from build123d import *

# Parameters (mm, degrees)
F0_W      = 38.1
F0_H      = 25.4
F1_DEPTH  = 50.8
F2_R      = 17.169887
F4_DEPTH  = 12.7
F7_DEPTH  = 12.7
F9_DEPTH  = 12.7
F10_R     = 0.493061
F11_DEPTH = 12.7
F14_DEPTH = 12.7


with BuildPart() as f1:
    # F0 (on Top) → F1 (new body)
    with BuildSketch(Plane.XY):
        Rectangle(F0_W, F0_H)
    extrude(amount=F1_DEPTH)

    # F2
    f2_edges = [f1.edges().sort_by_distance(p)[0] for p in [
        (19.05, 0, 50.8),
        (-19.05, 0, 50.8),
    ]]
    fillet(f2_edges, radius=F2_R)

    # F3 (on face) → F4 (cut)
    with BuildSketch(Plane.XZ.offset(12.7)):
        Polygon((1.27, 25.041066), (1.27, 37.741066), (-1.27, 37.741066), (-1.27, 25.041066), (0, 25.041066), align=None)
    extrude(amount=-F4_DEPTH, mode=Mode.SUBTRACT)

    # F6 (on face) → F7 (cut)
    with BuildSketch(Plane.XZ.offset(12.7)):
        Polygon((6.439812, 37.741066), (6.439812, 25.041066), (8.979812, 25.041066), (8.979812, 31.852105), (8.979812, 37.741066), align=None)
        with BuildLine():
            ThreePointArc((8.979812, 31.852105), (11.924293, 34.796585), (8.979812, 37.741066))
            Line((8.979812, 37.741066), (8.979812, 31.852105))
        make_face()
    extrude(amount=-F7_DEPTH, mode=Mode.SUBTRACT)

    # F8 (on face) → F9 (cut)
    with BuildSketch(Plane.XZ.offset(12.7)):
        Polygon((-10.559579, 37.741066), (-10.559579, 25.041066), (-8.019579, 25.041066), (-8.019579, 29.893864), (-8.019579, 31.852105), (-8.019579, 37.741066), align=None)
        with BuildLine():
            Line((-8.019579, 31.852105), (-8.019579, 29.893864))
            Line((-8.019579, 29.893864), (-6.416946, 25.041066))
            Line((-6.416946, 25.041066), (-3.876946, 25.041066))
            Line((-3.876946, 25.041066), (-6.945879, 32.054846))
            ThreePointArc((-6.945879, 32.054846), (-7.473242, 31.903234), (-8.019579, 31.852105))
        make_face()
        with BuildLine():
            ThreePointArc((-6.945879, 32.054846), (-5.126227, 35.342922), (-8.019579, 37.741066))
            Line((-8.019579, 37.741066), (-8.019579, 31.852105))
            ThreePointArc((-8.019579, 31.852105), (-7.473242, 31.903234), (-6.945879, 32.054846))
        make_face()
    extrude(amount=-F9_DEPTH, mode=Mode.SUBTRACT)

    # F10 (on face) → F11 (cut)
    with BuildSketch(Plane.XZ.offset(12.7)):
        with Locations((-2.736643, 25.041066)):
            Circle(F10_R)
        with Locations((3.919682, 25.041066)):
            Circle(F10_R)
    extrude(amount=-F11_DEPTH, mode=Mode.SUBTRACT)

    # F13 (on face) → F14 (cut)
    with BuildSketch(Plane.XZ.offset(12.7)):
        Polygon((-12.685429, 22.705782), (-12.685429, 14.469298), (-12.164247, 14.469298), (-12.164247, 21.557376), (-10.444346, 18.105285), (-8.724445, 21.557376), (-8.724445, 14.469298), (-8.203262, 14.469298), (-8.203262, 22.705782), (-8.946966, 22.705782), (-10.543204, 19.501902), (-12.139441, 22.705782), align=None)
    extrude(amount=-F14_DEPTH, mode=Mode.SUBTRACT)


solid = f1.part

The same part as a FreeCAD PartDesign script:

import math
import FreeCAD as App
import Part
import Sketcher
from FreeCAD import Vector
Q = App.Units.Quantity


def edges_at(feature, points):
    """Names of the edges that pass closest to the given points."""
    edges = feature.Shape.Edges
    near = lambda p: min(range(len(edges)), key=lambda i: edges[i].distToShape(Part.Vertex(*p))[0])
    return sorted({f"Edge{near(p) + 1}" for p in points})


def add_polygon(sketch, points):
    """Adds a closed chain of lines whose ends are joined by coincident constraints."""
    first, n = sketch.GeometryCount, len(points)
    for a, b in zip(points, points[1:] + points[:1]):
        sketch.addGeometry(Part.LineSegment(App.Vector(*a, 0), App.Vector(*b, 0)), False)
    for i in range(n):
        sketch.addConstraint(Sketcher.Constraint("Coincident", first + i, 2, first + (i + 1) % n, 1))

doc = App.newDocument("Part")
body = doc.addObject("PartDesign::Body", "Body")

sketch1 = doc.addObject("Sketcher::SketchObject", "Sketch")
body.addObject(sketch1)
sketch1.AttachmentSupport = (doc.XY_Plane, [""])
sketch1.MapMode = "FlatFace"
add_polygon(sketch1, [(-19, 13), (-19, -13), (19, -13), (19, 13)])
sketch1.addConstraint([
    Sketcher.Constraint("Vertical", 0),
    Sketcher.Constraint("Horizontal", 1),
    Sketcher.Constraint("Vertical", 2),
    Sketcher.Constraint("Horizontal", 3),
    Sketcher.Constraint("Symmetric", 0, 2, 2, 2, -1, 1),
    Sketcher.Constraint("DistanceY", 0, 2, 0, 1, Q("1 in")),
    Sketcher.Constraint("DistanceX", 1, 1, 1, 2, Q("1.5 in")),
])
pad1 = doc.addObject("PartDesign::Pad", "Pad")
body.addObject(pad1)
pad1.Profile = sketch1
pad1.Length = Q("2 in")
doc.recompute()

fillet = doc.addObject("PartDesign::Fillet", "Fillet")
body.addObject(fillet)
fillet.Base = (pad1, edges_at(pad1, [(19.05, 0, 50.8), (-19.05, 0, 50.8)]))
fillet.Radius = 17.169887

sketch2 = doc.addObject("Sketcher::SketchObject", "Sketch001")
body.addObject(sketch2)
sketch2.AttachmentSupport = (doc.XZ_Plane, [""])
sketch2.MapMode = "FlatFace"
sketch2.AttachmentOffset = App.Placement(Vector(0, 0, 0.5 * 25.4), App.Rotation())
add_polygon(sketch2, [(1.3, 25), (1.3, 37.7), (-1.3, 37.7), (-1.3, 25)])
sketch2.addConstraint([
    Sketcher.Constraint("Vertical", 0),
    Sketcher.Constraint("Horizontal", 1),
    Sketcher.Constraint("Vertical", 2),
    Sketcher.Constraint("Horizontal", 3),
    Sketcher.Constraint("DistanceX", 1, 2, 1, 1, Q("0.1 in")),
    Sketcher.Constraint("DistanceY", 0, 1, 0, 2, Q("0.5 in")),
    Sketcher.Constraint("DistanceX", -1, 1, 0, 2, Q("0.05 in")),
    Sketcher.Constraint("DistanceY", -1, 1, 0, 2, 37.741066),
])
pocket1 = doc.addObject("PartDesign::Pocket", "Pocket")
body.addObject(pocket1)
pocket1.Profile = sketch2
pocket1.Length = Q("0.5 in")

sketch3 = doc.addObject("Sketcher::SketchObject", "Sketch002")
body.addObject(sketch3)
sketch3.AttachmentSupport = (doc.XZ_Plane, [""])
sketch3.MapMode = "FlatFace"
sketch3.AttachmentOffset = App.Placement(Vector(0, 0, 0.5 * 25.4), App.Rotation())
sketch3.addGeometry([
    Part.LineSegment(Vector(6.4, 37.7, 0), Vector(6.4, 25, 0)),
    Part.LineSegment(Vector(6.4, 25, 0), Vector(9, 25, 0)),
    Part.LineSegment(Vector(9, 25, 0), Vector(9, 31.9, 0)),
    Part.ArcOfCircle(Part.Circle(Vector(9, 34.8, 0), Vector(0, 0, 1), 2.9), math.radians(-90), math.radians(90)),
    Part.LineSegment(Vector(9, 37.7, 0), Vector(6.4, 37.7, 0)),
], False)
sketch3.addConstraint([
    Sketcher.Constraint("Coincident", 0, 2, 1, 1),
    Sketcher.Constraint("Coincident", 1, 2, 2, 1),
    Sketcher.Constraint("Coincident", 2, 2, 3, 1),
    Sketcher.Constraint("Tangent", 3, 2, 4, 1),
    Sketcher.Constraint("Coincident", 4, 2, 0, 1),
    Sketcher.Constraint("Vertical", 0),
    Sketcher.Constraint("Horizontal", 1),
    Sketcher.Constraint("Vertical", 2),
    Sketcher.Constraint("Horizontal", 4),
    Sketcher.Constraint("Vertical", 3, 3, 1, 2),
    Sketcher.Constraint("DistanceX", 1, 1, 1, 2, Q("0.1 in")),
    Sketcher.Constraint("DistanceY", 0, 2, 0, 1, Q("0.5 in")),
    Sketcher.Constraint("Radius", 3, 2.944481),
    Sketcher.Constraint("DistanceX", -1, 1, 3, 3, 8.979812),
    Sketcher.Constraint("DistanceY", -1, 1, 3, 3, 34.796585),
])
pocket2 = doc.addObject("PartDesign::Pocket", "Pocket001")
body.addObject(pocket2)
pocket2.Profile = sketch3
pocket2.Length = Q("0.5 in")

sketch4 = doc.addObject("Sketcher::SketchObject", "Sketch003")
body.addObject(sketch4)
sketch4.AttachmentSupport = (doc.XZ_Plane, [""])
sketch4.MapMode = "FlatFace"
sketch4.AttachmentOffset = App.Placement(Vector(0, 0, 0.5 * 25.4), App.Rotation())
sketch4.addGeometry([
    Part.LineSegment(Vector(-10.6, 37.7, 0), Vector(-10.6, 25, 0)),
    Part.LineSegment(Vector(-10.6, 25, 0), Vector(-8, 25, 0)),
    Part.LineSegment(Vector(-8, 25, 0), Vector(-8, 29.9, 0)),
    Part.LineSegment(Vector(-8, 29.9, 0), Vector(-6.4, 25, 0)),
    Part.LineSegment(Vector(-6.4, 25, 0), Vector(-3.9, 25, 0)),
    Part.LineSegment(Vector(-3.9, 25, 0), Vector(-6.9, 32.1, 0)),
    Part.ArcOfCircle(Part.Circle(Vector(-8, 34.8, 0), Vector(0, 0, 1), 2.9), math.radians(-69), math.radians(90)),
    Part.LineSegment(Vector(-8, 37.7, 0), Vector(-10.6, 37.7, 0)),
], False)
sketch4.addConstraint([
    Sketcher.Constraint("Coincident", 0, 2, 1, 1),
    Sketcher.Constraint("Coincident", 1, 2, 2, 1),
    Sketcher.Constraint("Coincident", 2, 2, 3, 1),
    Sketcher.Constraint("Coincident", 3, 2, 4, 1),
    Sketcher.Constraint("Coincident", 4, 2, 5, 1),
    Sketcher.Constraint("Coincident", 5, 2, 6, 1),
    Sketcher.Constraint("Tangent", 6, 2, 7, 1),
    Sketcher.Constraint("Coincident", 7, 2, 0, 1),
    Sketcher.Constraint("Vertical", 0),
    Sketcher.Constraint("Horizontal", 1),
    Sketcher.Constraint("Vertical", 2),
    Sketcher.Constraint("Horizontal", 4),
    Sketcher.Constraint("Horizontal", 7),
    Sketcher.Constraint("Horizontal", 1, 2, 3, 2),
    Sketcher.Constraint("Vertical", 6, 3, 1, 2),
    Sketcher.Constraint("Equal", 1, 4),
    Sketcher.Constraint("DistanceX", 1, 1, 1, 2, Q("0.1 in")),
    Sketcher.Constraint("DistanceY", 0, 2, 0, 1, Q("0.5 in")),
    Sketcher.Constraint("Radius", 6, 2.944481),
    Sketcher.Constraint("DistanceX", 2, 2, 5, 2, 1.0737),
    Sketcher.Constraint("DistanceY", 2, 2, 6, 2, 7.847202),
    Sketcher.Constraint("DistanceX", 6, 3, -1, 1, 8.019578),
    Sketcher.Constraint("Distance", 3, 5.110585),
    Sketcher.Constraint("DistanceY", -1, 1, 6, 3, 34.796585),
])
pocket3 = doc.addObject("PartDesign::Pocket", "Pocket002")
body.addObject(pocket3)
pocket3.Profile = sketch4
pocket3.Length = Q("0.5 in")

sketch5 = doc.addObject("Sketcher::SketchObject", "Sketch004")
body.addObject(sketch5)
sketch5.AttachmentSupport = (doc.XZ_Plane, [""])
sketch5.MapMode = "FlatFace"
sketch5.AttachmentOffset = App.Placement(Vector(0, 0, 0.5 * 25.4), App.Rotation())
sketch5.addGeometry([
    Part.Circle(Vector(-2.74, 25.04, 0), Vector(0, 0, 1), 0.49),
    Part.Circle(Vector(3.92, 25.04, 0), Vector(0, 0, 1), 0.49),
], False)
sketch5.addConstraint([
    Sketcher.Constraint("Equal", 0, 1),
    Sketcher.Constraint("Horizontal", 0, 3, 1, 3),
    Sketcher.Constraint("Diameter", 0, 0.986122),
    Sketcher.Constraint("DistanceX", -1, 1, 1, 3, 3.919682),
    Sketcher.Constraint("DistanceX", 0, 3, -1, 1, 2.736643),
    Sketcher.Constraint("DistanceY", -1, 1, 0, 3, 25.041066),
])
pocket4 = doc.addObject("PartDesign::Pocket", "Pocket003")
body.addObject(pocket4)
pocket4.Profile = sketch5
pocket4.Length = Q("0.5 in")

sketch6 = doc.addObject("Sketcher::SketchObject", "Sketch005")
body.addObject(sketch6)
sketch6.AttachmentSupport = (doc.XZ_Plane, [""])
sketch6.MapMode = "FlatFace"
sketch6.AttachmentOffset = App.Placement(Vector(0, 0, 0.5 * 25.4), App.Rotation())
add_polygon(sketch6, [(-12.7, 22.7), (-12.7, 14.5), (-12.2, 14.5), (-12.2, 21.6), (-10.4, 18.1), (-8.7, 21.6), (-8.7, 14.5), (-8.2, 14.5), (-8.2, 22.7), (-8.9, 22.7), (-10.5, 19.5), (-12.1, 22.7)])
sketch6.addConstraint([
    Sketcher.Constraint("Vertical", 0),
    Sketcher.Constraint("Horizontal", 1),
    Sketcher.Constraint("Vertical", 2),
    Sketcher.Constraint("Vertical", 5),
    Sketcher.Constraint("Horizontal", 6),
    Sketcher.Constraint("Vertical", 7),
    Sketcher.Constraint("Horizontal", 8),
    Sketcher.Constraint("Horizontal", 11),
    Sketcher.Constraint("Parallel", 4, 9),
    Sketcher.Constraint("Parallel", 3, 10),
    Sketcher.Constraint("Horizontal", 2, 2, 4, 2),
    Sketcher.Constraint("Horizontal", 1, 2, 5, 2),
    Sketcher.Constraint("Horizontal", 8, 2, 10, 2),
    Sketcher.Constraint("Equal", 1, 6),
    Sketcher.Constraint("Equal", 3, 4),
    Sketcher.Constraint("Distance", 9, 3.5795),
    Sketcher.Constraint("DistanceX", 1, 1, 1, 2, 0.521182),
    Sketcher.Constraint("DistanceY", 2, 1, 2, 2, 7.088078),
    Sketcher.Constraint("DistanceX", 2, 2, 3, 2, 1.719901),
    Sketcher.Constraint("Distance", 3, 3.856811),
    Sketcher.Constraint("DistanceX", 8, 2, 8, 1, 0.743704),
    Sketcher.Constraint("DistanceY", 0, 2, 0, 1, 8.236484),
    Sketcher.Constraint("DistanceX", 0, 2, -1, 1, 12.685429),
    Sketcher.Constraint("DistanceY", -1, 1, 7, 2, 22.705782),
])
pocket5 = doc.addObject("PartDesign::Pocket", "Pocket004")
body.addObject(pocket5)
pocket5.Profile = sketch6
pocket5.Length = Q("0.5 in")

doc.recompute()
